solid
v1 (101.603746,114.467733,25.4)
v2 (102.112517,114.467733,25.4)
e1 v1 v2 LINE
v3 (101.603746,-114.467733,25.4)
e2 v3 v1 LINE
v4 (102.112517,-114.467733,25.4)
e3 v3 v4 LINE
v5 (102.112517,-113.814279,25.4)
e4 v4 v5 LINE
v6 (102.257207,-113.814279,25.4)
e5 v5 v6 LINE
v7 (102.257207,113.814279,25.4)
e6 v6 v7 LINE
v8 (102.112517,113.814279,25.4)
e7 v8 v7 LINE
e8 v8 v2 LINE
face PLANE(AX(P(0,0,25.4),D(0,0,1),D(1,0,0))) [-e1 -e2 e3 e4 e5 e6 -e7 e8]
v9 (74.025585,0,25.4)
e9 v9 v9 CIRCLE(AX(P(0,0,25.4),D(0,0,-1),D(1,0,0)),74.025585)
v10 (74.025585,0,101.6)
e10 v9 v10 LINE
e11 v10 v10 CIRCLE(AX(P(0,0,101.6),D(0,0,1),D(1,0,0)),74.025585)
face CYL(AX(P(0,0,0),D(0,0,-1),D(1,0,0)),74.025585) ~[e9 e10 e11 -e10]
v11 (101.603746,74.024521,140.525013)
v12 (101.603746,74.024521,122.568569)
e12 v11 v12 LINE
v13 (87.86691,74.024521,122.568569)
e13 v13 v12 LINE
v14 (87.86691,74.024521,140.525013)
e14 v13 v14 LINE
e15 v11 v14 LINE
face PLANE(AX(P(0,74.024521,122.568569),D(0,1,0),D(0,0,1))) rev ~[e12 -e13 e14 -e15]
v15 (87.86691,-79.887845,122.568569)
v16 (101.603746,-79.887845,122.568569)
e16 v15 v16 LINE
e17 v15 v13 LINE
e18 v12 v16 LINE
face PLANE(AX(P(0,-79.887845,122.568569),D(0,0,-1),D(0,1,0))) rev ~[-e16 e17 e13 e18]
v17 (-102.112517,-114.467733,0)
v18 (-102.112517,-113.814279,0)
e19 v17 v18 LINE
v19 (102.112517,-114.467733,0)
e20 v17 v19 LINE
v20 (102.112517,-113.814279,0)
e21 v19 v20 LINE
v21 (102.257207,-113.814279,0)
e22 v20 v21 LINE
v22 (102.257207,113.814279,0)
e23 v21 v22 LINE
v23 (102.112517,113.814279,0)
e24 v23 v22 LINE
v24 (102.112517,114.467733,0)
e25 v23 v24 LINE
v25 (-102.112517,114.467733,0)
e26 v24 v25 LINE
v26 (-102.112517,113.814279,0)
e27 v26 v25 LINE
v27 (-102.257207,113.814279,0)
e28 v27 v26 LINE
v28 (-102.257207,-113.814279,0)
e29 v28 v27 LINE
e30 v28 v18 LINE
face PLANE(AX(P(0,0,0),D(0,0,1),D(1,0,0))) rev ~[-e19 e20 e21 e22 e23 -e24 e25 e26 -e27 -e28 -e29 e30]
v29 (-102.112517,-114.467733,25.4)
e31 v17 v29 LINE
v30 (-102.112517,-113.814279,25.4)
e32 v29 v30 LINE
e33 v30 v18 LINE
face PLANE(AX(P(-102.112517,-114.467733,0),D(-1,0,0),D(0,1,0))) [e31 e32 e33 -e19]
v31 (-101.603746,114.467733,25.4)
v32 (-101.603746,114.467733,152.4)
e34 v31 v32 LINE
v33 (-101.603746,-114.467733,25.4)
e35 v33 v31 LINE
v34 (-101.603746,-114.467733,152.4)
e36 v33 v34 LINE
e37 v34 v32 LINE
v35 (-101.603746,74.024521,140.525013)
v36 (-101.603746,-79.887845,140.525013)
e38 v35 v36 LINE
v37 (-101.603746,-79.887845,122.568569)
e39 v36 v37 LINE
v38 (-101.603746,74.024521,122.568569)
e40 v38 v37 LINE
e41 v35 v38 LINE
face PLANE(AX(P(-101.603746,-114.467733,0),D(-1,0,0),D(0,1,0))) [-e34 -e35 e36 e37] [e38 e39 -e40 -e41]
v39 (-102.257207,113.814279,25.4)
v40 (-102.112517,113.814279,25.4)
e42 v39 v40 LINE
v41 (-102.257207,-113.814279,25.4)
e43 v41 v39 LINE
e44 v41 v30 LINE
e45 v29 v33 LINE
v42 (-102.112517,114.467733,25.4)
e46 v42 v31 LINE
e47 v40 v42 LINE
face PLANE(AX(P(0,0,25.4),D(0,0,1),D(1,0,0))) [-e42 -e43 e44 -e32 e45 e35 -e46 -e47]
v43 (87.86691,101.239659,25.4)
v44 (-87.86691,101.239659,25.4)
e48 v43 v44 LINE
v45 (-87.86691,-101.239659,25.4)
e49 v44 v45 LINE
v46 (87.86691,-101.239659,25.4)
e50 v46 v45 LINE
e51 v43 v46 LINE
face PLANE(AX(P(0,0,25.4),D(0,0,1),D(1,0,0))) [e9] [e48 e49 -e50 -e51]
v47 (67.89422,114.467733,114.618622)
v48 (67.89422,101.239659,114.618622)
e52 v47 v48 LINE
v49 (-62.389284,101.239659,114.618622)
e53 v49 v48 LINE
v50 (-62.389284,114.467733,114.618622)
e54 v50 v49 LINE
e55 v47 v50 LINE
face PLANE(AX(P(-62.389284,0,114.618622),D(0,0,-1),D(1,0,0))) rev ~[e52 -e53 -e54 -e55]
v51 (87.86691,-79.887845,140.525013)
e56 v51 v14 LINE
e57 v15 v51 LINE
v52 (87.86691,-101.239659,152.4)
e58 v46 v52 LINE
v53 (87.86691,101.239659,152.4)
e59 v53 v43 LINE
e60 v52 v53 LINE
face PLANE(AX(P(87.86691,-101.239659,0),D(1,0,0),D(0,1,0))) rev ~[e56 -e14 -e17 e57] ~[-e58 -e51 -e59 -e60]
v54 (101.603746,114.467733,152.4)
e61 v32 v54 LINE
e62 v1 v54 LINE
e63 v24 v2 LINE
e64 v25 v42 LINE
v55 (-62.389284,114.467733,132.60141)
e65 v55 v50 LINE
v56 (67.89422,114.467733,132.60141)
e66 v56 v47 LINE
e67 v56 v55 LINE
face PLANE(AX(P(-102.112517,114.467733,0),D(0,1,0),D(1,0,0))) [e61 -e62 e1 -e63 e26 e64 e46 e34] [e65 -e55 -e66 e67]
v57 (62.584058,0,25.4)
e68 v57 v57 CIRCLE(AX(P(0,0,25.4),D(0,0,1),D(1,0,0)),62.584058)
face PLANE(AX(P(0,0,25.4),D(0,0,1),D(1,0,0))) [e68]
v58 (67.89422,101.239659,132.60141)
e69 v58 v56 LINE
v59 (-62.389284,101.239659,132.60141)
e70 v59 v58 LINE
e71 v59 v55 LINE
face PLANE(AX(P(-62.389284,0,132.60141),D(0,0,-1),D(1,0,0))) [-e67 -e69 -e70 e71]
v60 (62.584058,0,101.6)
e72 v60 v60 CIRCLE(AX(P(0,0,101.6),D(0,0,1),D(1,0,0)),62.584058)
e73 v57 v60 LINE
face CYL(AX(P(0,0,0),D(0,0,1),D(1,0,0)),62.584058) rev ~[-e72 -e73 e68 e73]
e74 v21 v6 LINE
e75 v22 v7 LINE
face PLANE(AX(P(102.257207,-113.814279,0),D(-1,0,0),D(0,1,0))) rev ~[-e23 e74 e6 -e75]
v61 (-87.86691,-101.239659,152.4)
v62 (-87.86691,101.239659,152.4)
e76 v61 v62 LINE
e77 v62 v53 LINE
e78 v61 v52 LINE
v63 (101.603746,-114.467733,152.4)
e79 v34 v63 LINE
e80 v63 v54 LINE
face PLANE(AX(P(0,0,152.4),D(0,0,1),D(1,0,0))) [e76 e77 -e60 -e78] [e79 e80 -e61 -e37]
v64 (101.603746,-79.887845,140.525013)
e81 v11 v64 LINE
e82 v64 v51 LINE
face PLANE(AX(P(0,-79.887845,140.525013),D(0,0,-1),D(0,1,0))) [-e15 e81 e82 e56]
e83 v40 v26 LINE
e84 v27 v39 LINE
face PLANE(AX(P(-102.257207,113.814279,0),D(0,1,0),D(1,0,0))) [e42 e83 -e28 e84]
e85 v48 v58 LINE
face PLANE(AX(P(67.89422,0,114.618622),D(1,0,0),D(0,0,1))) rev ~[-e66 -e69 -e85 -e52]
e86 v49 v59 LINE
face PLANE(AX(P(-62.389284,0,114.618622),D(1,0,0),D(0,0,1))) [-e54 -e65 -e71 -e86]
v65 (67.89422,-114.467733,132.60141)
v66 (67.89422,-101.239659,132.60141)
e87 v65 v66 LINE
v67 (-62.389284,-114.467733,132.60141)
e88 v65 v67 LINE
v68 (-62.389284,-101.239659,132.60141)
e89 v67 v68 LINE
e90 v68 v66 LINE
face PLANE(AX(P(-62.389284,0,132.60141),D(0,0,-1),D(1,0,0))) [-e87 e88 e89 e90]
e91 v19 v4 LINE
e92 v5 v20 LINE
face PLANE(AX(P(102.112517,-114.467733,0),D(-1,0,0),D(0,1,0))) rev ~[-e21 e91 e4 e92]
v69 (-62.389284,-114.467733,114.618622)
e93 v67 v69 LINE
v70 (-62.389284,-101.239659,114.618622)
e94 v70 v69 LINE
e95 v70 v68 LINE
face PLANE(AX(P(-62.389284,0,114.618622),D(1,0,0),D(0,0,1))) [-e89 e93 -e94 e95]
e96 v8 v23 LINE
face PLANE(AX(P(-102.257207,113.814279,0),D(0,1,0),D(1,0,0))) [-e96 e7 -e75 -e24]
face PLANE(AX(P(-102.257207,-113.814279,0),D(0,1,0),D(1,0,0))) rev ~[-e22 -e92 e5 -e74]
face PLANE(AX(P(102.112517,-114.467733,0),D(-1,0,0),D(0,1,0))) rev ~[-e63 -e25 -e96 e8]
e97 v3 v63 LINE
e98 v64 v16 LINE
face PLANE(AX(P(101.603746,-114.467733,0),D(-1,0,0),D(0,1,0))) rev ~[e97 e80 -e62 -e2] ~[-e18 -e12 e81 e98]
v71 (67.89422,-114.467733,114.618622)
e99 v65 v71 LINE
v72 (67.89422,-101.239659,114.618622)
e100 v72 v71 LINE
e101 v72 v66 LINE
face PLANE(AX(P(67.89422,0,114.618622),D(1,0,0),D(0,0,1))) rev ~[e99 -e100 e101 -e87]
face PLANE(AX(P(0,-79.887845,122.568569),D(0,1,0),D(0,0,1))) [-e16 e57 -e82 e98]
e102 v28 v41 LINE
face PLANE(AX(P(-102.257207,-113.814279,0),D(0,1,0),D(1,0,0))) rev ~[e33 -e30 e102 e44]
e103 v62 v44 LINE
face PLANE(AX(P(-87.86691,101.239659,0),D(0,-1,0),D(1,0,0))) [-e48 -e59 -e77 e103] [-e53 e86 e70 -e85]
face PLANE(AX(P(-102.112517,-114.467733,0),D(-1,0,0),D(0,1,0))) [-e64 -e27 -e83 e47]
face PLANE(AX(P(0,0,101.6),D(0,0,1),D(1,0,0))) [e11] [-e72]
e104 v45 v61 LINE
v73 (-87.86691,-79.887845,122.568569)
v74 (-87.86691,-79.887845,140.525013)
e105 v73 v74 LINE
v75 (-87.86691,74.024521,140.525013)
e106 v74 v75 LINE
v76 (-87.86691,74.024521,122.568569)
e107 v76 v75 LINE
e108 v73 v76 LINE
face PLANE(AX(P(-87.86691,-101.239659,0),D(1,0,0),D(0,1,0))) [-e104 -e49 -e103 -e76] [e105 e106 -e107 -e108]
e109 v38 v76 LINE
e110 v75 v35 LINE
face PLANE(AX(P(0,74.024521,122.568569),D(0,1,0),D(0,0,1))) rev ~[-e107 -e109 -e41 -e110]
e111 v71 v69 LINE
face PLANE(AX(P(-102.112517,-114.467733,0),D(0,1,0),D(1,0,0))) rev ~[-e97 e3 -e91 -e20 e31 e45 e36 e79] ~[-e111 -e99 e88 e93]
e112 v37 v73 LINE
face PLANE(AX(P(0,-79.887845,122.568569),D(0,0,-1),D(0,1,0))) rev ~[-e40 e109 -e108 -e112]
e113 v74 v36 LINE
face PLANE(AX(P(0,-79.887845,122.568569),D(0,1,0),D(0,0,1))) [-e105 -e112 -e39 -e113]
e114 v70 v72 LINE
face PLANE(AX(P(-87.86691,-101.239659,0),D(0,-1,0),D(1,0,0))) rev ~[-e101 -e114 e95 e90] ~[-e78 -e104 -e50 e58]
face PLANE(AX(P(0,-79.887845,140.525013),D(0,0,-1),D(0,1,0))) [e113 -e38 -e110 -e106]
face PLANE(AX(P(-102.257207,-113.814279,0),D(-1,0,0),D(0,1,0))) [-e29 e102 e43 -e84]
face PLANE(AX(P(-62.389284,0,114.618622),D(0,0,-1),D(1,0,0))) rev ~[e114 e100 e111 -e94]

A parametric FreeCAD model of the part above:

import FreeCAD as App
import Part
import Sketcher
Q = App.Units.Quantity


def add_polygon(sketch, points):
    """Adds a closed chain of lines whose ends are joined by coincident constraints."""
    first, n = sketch.GeometryCount, len(points)
    for a, b in zip(points, points[1:] + points[:1]):
        sketch.addGeometry(Part.LineSegment(App.Vector(*a, 0), App.Vector(*b, 0)), False)
    for i in range(n):
        sketch.addConstraint(Sketcher.Constraint("Coincident", first + i, 2, first + (i + 1) % n, 1))

doc = App.newDocument("Part")
body = doc.addObject("PartDesign::Body", "Body")

sketch1 = body.newObject("Sketcher::SketchObject", "Sketch")
sketch1.AttachmentSupport = (doc.getObject("XY_Plane"), [""])
sketch1.MapMode = "FlatFace"
add_polygon(sketch1, [(-102, 114), (-102, -114), (102, -114), (102, 114)])
sketch1.addConstraint([
    Sketcher.Constraint("Vertical", 0),
    Sketcher.Constraint("Horizontal", 1),
    Sketcher.Constraint("Vertical", 2),
    Sketcher.Constraint("Horizontal", 3),
    Sketcher.Constraint("Symmetric", 0, 2, 2, 2, -1, 1),
    Sketcher.Constraint("DistanceX", 1, 1, 1, 2, 203.207492),
    Sketcher.Constraint("DistanceY", 0, 2, 0, 1, 228.935466),
])
pad1 = body.newObject("PartDesign::Pad", "Pad")
pad1.Profile = sketch1
pad1.Length = Q("6 in")

sketch2 = body.newObject("Sketcher::SketchObject", "Sketch001")
sketch2.AttachmentSupport = (doc.getObject("XY_Plane"), [""])
sketch2.MapMode = "FlatFace"
add_polygon(sketch2, [(-88, 101), (-88, -101), (88, -101), (88, 101)])
sketch2.addConstraint([
    Sketcher.Constraint("Vertical", 0),
    Sketcher.Constraint("Horizontal", 1),
    Sketcher.Constraint("Vertical", 2),
    Sketcher.Constraint("Horizontal", 3),
    Sketcher.Constraint("Symmetric", 0, 2, 2, 2, -1, 1),
    Sketcher.Constraint("DistanceX", 1, 1, 1, 2, 175.73382),
    Sketcher.Constraint("DistanceY", 0, 2, 0, 1, 202.479318),
])
pocket1 = body.newObject("PartDesign::Pocket", "Pocket")
pocket1.Profile = sketch2
pocket1.Length = Q("100 in")
pocket1.Midplane = True

sketch3 = body.newObject("Sketcher::SketchObject", "Sketch002")
sketch3.AttachmentSupport = (doc.getObject("XY_Plane"), [""])
sketch3.MapMode = "FlatFace"
add_polygon(sketch3, [(-102, 114), (-102, -114), (102, -114), (102, 114)])
sketch3.addConstraint([
    Sketcher.Constraint("Vertical", 0),
    Sketcher.Constraint("Horizontal", 1),
    Sketcher.Constraint("Vertical", 2),
    Sketcher.Constraint("Horizontal", 3),
    Sketcher.Constraint("Symmetric", 0, 2, 2, 2, -1, 1),
    Sketcher.Constraint("DistanceX", 1, 1, 1, 2, 204.225034),
    Sketcher.Constraint("DistanceY", 0, 2, 0, 1, 228.935466),
])
pad2 = body.newObject("PartDesign::Pad", "Pad001")
pad2.Profile = sketch3
pad2.Length = Q("1 in")

sketch4 = body.newObject("Sketcher::SketchObject", "Sketch003")
sketch4.AttachmentSupport = (doc.getObject("XY_Plane"), [""])
sketch4.MapMode = "FlatFace"
sketch4.addGeometry(Part.Circle(App.Vector(0, 0, 0), App.Vector(0, 0, 1), 74), False)
sketch4.addConstraint([
    Sketcher.Constraint("Coincident", 0, 3, -1, 1),
    Sketcher.Constraint("Diameter", 0, 148.05117),
])
pad3 = body.newObject("PartDesign::Pad", "Pad002")
pad3.Profile = sketch4
pad3.Length = Q("4 in")

sketch5 = body.newObject("Sketcher::SketchObject", "Sketch004")
sketch5.AttachmentSupport = (doc.getObject("XY_Plane"), [""])
sketch5.MapMode = "FlatFace"
sketch5.addGeometry(Part.Circle(App.Vector(0, 0, 0), App.Vector(0, 0, 1), 63), False)
sketch5.addConstraint([
    Sketcher.Constraint("Coincident", 0, 3, -1, 1),
    Sketcher.Constraint("Diameter", 0, 125.168116),
])
pocket2 = body.newObject("PartDesign::Pocket", "Pocket001")
pocket2.Profile = sketch5
pocket2.Length = Q("1000 in")
pocket2.Midplane = True

sketch6 = body.newObject("Sketcher::SketchObject", "Sketch005")
sketch6.AttachmentSupport = (doc.getObject("XY_Plane"), [""])
sketch6.MapMode = "FlatFace"
add_polygon(sketch6, [(-102, 114), (-102, -114), (102, -114), (102, 114)])
sketch6.addConstraint([
    Sketcher.Constraint("Vertical", 0),
    Sketcher.Constraint("Horizontal", 1),
    Sketcher.Constraint("Vertical", 2),
    Sketcher.Constraint("Horizontal", 3),
    Sketcher.Constraint("Symmetric", 0, 2, 2, 2, -1, 1),
    Sketcher.Constraint("DistanceY", 0, 2, 0, 1, 227.628558),
    Sketcher.Constraint("DistanceX", 1, 1, 1, 2, 204.514414),
])
pad4 = body.newObject("PartDesign::Pad", "Pad003")
pad4.Profile = sketch6
pad4.Length = Q("1 in")

sketch7 = body.newObject("Sketcher::SketchObject", "Sketch006")
sketch7.AttachmentSupport = (doc.getObject("XZ_Plane"), [""])
sketch7.MapMode = "FlatFace"
add_polygon(sketch7, [(-62, 133), (-62, 115), (68, 115), (68, 133)])
sketch7.addConstraint([
    Sketcher.Constraint("Vertical", 0),
    Sketcher.Constraint("Horizontal", 1),
    Sketcher.Constraint("Vertical", 2),
    Sketcher.Constraint("Horizontal", 3),
    Sketcher.Constraint("DistanceX", 1, 1, 1, 2, 130.283504),
    Sketcher.Constraint("DistanceY", 0, 2, 0, 1, 17.982788),
    Sketcher.Constraint("DistanceY", -1, 1, 0, 2, 114.618622),
    Sketcher.Constraint("DistanceX", -1, 1, 1, 2, 67.89422),
])
pocket3 = body.newObject("PartDesign::Pocket", "Pocket002")
pocket3.Profile = sketch7
pocket3.Length = Q("1000 in")
pocket3.Midplane = True

sketch8 = body.newObject("Sketcher::SketchObject", "Sketch007")
sketch8.AttachmentSupport = (doc.getObject("YZ_Plane"), [""])
sketch8.MapMode = "FlatFace"
add_polygon(sketch8, [(-80, 141), (-80, 123), (74, 123), (74, 141)])
sketch8.addConstraint([
    Sketcher.Constraint("Vertical", 0),
    Sketcher.Constraint("Horizontal", 1),
    Sketcher.Constraint("Vertical", 2),
    Sketcher.Constraint("Horizontal", 3),
    Sketcher.Constraint("DistanceX", 1, 1, 1, 2, 153.912366),
    Sketcher.Constraint("DistanceY", 0, 2, 0, 1, 17.956443),
    Sketcher.Constraint("DistanceY", -1, 1, 0, 2, 122.568569),
    Sketcher.Constraint("DistanceX", -1, 1, 1, 2, 74.024521),
])
pocket4 = body.newObject("PartDesign::Pocket", "Pocket003")
pocket4.Profile = sketch8
pocket4.Length = Q("10000 in")
pocket4.Midplane = True

doc.recompute()
